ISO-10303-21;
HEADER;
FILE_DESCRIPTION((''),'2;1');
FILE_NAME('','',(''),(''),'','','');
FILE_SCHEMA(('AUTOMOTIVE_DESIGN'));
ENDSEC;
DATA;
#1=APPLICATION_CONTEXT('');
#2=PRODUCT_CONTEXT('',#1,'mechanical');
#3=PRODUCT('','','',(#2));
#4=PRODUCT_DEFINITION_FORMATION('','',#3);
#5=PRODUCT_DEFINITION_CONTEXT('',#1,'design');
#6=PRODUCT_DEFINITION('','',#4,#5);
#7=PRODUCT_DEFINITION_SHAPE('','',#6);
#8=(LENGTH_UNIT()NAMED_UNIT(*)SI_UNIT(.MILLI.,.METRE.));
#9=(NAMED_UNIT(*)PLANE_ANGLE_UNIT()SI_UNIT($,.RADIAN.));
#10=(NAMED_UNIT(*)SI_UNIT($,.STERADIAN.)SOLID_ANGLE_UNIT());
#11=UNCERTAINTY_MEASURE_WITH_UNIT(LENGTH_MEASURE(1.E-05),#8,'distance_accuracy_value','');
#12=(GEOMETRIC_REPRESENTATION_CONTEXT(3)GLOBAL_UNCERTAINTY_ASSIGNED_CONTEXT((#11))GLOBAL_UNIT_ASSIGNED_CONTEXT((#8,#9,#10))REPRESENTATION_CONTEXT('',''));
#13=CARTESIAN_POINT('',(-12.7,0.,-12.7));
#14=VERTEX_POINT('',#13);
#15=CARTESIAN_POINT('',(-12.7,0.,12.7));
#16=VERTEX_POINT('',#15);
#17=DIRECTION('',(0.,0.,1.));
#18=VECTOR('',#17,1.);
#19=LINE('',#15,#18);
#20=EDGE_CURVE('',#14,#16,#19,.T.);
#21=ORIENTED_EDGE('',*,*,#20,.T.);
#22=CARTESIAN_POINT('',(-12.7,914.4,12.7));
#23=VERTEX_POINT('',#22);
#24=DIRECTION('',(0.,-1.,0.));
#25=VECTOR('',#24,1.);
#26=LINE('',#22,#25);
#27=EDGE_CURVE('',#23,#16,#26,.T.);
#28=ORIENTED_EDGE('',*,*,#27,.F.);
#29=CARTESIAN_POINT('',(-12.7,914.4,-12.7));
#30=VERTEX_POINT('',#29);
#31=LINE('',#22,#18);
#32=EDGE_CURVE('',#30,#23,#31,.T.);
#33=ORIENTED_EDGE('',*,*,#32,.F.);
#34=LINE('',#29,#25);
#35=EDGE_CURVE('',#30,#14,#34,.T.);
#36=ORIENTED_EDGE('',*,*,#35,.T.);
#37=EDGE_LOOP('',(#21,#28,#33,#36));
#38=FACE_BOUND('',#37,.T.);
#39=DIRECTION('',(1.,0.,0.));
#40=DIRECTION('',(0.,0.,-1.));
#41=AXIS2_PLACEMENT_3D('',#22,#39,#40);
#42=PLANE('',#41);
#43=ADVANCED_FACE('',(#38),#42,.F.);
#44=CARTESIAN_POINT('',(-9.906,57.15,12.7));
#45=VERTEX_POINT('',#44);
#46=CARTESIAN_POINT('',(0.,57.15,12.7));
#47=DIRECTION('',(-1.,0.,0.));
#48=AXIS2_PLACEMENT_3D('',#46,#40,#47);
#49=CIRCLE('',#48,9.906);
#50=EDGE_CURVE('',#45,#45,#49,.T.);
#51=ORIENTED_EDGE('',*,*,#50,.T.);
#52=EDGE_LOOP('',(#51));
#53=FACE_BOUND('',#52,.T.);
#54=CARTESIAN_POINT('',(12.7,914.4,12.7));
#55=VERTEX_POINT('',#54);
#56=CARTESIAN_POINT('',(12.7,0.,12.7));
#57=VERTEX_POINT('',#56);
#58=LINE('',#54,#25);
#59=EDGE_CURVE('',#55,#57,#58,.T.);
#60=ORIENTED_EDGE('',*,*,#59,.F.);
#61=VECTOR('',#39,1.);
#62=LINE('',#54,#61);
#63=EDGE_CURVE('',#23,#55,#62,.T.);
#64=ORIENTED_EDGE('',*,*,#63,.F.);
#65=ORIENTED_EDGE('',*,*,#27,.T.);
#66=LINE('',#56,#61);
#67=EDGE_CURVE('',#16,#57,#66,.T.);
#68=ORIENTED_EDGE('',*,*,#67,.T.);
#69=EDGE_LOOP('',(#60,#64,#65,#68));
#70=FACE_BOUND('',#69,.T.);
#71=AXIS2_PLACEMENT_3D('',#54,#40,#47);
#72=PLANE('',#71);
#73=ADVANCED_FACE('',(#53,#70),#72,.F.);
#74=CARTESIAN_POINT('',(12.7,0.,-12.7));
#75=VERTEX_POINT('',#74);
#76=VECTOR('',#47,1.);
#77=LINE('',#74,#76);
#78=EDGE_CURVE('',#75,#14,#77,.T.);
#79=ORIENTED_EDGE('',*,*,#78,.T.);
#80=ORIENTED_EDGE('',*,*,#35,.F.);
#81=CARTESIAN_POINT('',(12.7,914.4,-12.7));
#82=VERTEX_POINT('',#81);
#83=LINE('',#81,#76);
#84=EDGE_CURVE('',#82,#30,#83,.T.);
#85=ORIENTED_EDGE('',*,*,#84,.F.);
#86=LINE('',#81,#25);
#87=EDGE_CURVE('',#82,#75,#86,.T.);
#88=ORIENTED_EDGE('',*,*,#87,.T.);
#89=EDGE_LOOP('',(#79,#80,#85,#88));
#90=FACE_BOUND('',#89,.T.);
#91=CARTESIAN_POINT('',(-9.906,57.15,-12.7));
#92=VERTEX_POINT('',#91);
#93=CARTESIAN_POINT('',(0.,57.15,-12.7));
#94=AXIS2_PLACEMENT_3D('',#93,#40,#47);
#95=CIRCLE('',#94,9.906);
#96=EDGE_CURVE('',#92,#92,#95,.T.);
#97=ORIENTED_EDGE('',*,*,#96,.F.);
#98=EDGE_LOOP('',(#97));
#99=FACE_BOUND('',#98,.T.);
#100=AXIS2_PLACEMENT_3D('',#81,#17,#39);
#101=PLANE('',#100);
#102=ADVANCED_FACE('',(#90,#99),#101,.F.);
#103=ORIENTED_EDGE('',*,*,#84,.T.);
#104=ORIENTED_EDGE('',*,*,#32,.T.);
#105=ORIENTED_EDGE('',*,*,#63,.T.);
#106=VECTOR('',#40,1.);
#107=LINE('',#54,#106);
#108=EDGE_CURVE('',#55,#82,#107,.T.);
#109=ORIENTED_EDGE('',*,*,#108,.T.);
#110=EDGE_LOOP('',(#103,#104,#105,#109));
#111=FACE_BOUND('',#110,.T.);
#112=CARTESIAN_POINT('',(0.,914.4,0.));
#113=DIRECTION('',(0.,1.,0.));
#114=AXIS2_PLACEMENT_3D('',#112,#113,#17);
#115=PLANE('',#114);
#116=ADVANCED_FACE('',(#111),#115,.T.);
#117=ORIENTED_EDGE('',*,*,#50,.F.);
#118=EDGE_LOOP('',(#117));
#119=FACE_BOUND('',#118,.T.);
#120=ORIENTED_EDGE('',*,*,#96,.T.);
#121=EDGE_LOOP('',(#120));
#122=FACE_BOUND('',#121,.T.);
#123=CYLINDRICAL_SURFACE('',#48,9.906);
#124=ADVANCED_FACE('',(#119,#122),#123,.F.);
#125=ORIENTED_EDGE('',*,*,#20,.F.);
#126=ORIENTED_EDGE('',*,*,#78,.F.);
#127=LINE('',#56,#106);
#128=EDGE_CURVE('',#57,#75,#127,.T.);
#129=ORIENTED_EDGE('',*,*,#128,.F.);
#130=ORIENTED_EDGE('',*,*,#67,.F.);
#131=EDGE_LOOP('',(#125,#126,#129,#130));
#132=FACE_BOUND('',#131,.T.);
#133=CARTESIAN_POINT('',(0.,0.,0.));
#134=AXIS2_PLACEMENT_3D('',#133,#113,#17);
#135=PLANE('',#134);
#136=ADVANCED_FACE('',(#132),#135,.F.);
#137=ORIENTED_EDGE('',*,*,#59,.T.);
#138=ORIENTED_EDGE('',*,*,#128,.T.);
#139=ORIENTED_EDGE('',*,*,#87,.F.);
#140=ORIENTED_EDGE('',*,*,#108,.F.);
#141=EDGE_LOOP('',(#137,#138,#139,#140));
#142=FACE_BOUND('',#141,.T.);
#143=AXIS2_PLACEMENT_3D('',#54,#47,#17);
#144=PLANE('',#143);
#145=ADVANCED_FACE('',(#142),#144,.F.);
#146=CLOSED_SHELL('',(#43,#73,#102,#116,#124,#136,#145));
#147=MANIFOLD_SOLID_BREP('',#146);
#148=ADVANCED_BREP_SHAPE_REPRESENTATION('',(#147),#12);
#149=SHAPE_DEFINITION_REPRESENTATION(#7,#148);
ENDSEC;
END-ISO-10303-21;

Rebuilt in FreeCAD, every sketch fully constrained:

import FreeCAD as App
import Part
import Sketcher
Q = App.Units.Quantity


def add_polygon(sketch, points):
    """Adds a closed chain of lines whose ends are joined by coincident constraints."""
    first, n = sketch.GeometryCount, len(points)
    for a, b in zip(points, points[1:] + points[:1]):
        sketch.addGeometry(Part.LineSegment(App.Vector(*a, 0), App.Vector(*b, 0)), False)
    for i in range(n):
        sketch.addConstraint(Sketcher.Constraint("Coincident", first + i, 2, first + (i + 1) % n, 1))

doc = App.newDocument("Part")
body = doc.addObject("PartDesign::Body", "Body")

sketch1 = body.newObject("Sketcher::SketchObject", "Sketch")
sketch1.AttachmentSupport = (doc.getObject("XZ_Plane"), [""])
sketch1.MapMode = "FlatFace"
add_polygon(sketch1, [(-13, -13), (-13, 13), (13, 13), (13, -13)])
sketch1.addConstraint([
    Sketcher.Constraint("Vertical", 0),
    Sketcher.Constraint("Horizontal", 1),
    Sketcher.Constraint("Vertical", 2),
    Sketcher.Constraint("Horizontal", 3),
    Sketcher.Constraint("Symmetric", 0, 2, 2, 2, -1, 1),
    Sketcher.Constraint("Equal", 3, 0),
    Sketcher.Constraint("DistanceX", 1, 1, 1, 2, Q("1 in")),
])
pad1 = body.newObject("PartDesign::Pad", "Pad")
pad1.Profile = sketch1
pad1.Length = Q("36 in")
pad1.Reversed = True

sketch2 = body.newObject("Sketcher::SketchObject", "Sketch001")
sketch2.AttachmentSupport = (doc.getObject("XY_Plane"), [""])
sketch2.MapMode = "FlatFace"
sketch2.AttachmentOffset = App.Placement(App.Vector(0, 0, -0.5 * 25.4), App.Rotation())
sketch2.addGeometry(Part.Circle(App.Vector(0, 57, 0), App.Vector(0, 0, 1), 10), False)
sketch2.addConstraint([
    Sketcher.Constraint("PointOnObject", 0, 3, -2),
    Sketcher.Constraint("Diameter", 0, Q("0.78 in")),
    Sketcher.Constraint("DistanceY", -1, 1, 0, 3, Q("2.25 in")),
])
pocket1 = body.newObject("PartDesign::Pocket", "Pocket")
pocket1.Profile = sketch2
pocket1.Type = "ThroughAll"
pocket1.Reversed = True

doc.recompute()
